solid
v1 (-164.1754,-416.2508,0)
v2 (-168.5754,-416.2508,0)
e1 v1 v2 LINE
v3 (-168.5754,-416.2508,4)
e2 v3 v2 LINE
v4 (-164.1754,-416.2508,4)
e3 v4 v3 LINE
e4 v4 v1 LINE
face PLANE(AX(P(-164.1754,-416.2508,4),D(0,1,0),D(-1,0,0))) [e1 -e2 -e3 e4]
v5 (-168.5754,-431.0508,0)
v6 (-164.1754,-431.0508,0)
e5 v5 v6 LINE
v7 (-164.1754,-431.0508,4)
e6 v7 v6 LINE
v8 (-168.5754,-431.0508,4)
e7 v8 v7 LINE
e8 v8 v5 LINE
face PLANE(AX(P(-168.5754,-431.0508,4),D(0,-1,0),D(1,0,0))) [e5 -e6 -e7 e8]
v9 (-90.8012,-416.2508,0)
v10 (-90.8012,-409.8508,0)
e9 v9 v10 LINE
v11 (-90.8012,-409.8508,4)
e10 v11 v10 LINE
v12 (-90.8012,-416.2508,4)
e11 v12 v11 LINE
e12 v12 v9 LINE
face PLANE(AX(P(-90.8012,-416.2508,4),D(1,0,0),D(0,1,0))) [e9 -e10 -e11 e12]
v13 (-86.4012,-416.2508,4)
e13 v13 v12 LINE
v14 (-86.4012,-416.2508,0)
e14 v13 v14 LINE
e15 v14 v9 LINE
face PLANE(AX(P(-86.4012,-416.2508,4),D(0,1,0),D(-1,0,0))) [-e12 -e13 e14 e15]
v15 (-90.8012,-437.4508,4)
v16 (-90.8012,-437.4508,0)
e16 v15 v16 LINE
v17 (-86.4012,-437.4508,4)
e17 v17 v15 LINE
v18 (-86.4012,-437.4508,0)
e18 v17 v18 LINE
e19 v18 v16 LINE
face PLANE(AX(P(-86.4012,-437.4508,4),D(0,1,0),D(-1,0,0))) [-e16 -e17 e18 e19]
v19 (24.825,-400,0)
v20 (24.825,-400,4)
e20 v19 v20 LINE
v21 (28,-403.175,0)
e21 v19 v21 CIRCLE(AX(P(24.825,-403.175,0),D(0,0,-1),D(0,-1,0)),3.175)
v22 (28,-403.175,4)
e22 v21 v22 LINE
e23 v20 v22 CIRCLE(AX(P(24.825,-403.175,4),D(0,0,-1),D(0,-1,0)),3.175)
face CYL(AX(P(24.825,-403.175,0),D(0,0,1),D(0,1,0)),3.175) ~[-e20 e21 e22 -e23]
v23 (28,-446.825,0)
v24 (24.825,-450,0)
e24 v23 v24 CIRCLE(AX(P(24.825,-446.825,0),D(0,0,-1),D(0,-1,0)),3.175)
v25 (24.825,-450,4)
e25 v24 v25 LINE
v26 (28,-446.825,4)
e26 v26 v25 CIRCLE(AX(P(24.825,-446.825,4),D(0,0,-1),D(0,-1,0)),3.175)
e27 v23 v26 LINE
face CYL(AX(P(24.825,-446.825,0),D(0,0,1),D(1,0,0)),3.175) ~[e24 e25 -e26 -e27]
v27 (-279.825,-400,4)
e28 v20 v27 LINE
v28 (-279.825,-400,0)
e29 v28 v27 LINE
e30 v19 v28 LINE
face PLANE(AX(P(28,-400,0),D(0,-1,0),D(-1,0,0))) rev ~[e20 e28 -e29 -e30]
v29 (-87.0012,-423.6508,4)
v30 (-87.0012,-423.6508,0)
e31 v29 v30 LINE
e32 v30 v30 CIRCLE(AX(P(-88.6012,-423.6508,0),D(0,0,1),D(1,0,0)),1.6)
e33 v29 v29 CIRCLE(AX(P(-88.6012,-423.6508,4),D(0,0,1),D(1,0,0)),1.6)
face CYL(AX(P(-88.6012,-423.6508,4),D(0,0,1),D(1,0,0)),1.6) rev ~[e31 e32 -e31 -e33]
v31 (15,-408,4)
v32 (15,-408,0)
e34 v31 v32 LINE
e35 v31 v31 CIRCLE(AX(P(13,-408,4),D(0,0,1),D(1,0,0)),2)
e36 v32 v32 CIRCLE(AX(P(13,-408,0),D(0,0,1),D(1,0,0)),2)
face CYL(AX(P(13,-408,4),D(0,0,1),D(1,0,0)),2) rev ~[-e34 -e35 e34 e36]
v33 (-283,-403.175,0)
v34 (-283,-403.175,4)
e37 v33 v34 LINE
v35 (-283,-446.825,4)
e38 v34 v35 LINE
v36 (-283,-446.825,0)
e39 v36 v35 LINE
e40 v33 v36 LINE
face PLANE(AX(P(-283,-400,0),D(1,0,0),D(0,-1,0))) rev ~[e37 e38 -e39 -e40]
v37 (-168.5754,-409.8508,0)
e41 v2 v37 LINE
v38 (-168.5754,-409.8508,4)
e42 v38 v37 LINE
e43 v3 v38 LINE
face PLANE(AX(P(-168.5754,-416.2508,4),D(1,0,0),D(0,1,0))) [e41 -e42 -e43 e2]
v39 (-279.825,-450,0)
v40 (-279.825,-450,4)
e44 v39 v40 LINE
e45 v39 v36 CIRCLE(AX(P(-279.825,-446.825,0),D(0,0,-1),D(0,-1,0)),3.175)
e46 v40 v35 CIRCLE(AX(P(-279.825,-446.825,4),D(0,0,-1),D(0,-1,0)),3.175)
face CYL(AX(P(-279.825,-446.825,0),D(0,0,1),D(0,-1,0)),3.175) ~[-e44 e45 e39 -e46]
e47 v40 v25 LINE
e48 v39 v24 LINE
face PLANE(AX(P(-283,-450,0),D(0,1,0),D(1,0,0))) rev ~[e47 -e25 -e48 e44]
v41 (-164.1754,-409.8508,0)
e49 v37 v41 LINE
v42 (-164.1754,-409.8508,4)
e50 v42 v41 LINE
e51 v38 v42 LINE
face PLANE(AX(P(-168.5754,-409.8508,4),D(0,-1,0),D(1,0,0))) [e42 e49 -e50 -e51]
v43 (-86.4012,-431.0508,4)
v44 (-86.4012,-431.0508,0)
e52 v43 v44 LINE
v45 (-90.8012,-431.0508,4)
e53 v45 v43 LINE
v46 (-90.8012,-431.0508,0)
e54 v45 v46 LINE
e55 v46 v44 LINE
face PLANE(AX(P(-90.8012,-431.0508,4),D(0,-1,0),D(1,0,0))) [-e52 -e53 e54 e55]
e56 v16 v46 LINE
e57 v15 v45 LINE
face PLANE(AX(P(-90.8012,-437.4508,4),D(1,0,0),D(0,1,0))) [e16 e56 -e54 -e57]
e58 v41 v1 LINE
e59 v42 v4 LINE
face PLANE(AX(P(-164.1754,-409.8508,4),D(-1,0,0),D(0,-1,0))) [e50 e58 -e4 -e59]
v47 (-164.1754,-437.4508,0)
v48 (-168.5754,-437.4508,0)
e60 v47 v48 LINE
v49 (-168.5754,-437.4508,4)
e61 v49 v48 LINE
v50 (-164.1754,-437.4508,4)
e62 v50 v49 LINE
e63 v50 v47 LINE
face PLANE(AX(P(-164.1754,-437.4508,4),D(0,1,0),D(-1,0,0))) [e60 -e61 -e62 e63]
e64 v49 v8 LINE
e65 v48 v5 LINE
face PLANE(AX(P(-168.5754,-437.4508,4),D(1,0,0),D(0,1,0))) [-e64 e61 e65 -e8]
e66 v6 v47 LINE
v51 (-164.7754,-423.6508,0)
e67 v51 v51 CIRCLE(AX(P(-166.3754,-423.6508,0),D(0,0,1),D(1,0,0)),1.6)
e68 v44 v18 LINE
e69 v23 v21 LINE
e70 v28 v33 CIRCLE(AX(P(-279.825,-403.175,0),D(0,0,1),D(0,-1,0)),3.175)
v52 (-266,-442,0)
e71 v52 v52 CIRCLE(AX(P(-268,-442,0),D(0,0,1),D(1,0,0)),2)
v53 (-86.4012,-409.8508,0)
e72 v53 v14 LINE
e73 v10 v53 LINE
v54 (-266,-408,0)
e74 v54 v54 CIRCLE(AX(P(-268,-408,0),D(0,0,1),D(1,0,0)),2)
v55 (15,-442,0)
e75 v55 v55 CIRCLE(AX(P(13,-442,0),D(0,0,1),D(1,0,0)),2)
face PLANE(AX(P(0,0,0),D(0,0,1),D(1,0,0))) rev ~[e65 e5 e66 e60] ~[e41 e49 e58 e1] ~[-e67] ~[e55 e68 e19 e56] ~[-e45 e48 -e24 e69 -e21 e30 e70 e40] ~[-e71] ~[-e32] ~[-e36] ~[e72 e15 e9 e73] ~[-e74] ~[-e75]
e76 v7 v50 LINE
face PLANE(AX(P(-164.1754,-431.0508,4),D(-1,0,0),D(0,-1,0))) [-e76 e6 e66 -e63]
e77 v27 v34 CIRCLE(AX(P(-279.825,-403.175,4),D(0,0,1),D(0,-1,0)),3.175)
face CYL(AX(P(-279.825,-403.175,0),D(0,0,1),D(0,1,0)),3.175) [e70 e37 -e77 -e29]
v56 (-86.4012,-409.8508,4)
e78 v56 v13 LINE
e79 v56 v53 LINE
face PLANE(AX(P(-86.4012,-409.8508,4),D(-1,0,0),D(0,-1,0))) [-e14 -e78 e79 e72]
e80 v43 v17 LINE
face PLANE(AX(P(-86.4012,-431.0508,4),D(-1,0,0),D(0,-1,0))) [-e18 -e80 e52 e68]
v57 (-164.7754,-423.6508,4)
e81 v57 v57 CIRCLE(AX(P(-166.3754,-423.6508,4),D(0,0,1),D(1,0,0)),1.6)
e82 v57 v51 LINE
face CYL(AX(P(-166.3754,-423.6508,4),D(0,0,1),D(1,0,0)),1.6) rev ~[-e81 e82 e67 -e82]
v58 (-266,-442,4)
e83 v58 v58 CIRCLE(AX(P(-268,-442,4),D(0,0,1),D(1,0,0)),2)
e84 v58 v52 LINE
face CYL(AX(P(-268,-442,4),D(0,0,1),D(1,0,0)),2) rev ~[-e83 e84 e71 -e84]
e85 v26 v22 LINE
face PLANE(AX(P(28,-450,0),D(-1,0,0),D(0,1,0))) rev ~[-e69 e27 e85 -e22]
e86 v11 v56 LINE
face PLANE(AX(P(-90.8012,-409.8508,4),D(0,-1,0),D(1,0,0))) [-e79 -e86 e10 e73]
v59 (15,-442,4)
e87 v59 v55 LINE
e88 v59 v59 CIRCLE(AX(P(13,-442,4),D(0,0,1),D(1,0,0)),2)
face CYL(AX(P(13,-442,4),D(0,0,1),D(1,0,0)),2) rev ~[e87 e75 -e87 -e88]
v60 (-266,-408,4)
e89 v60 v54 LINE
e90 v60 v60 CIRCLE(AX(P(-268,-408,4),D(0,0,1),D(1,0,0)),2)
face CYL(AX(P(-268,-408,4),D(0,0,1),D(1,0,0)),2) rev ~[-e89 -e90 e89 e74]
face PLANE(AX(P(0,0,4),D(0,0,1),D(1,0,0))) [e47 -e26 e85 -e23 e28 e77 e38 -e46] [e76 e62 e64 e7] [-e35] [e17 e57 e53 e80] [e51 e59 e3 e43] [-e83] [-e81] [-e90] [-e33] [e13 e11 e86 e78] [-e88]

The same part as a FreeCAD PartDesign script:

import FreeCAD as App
import Part
import Sketcher
Q = App.Units.Quantity


def edges_at(feature, points):
    """Names of the edges that pass closest to the given points."""
    edges = feature.Shape.Edges
    near = lambda p: min(range(len(edges)), key=lambda i: edges[i].distToShape(Part.Vertex(*p))[0])
    return sorted({f"Edge{near(p) + 1}" for p in points})


def add_polygon(sketch, points):
    """Adds a closed chain of lines whose ends are joined by coincident constraints."""
    first, n = sketch.GeometryCount, len(points)
    for a, b in zip(points, points[1:] + points[:1]):
        sketch.addGeometry(Part.LineSegment(App.Vector(*a, 0), App.Vector(*b, 0)), False)
    for i in range(n):
        sketch.addConstraint(Sketcher.Constraint("Coincident", first + i, 2, first + (i + 1) % n, 1))

doc = App.newDocument("Part")
params = doc.addObject("Spreadsheet::Sheet", "Params")
for row, (alias, value) in enumerate([
    ("sketch1_height", "50 mm"),
    ("sketch1_width", "311 mm"),
    ("pad1_length", "4 mm"),
    ("fillet_radius", "3.175 mm"),
    ("sketch2_diameter", "3.2 mm"),
    ("sketch2_width", "4.4 mm"),
    ("sketch2_height", "6.4 mm"),
    ("sketch3_diameter", "4 mm"),
    ("pocket2_length", "4 mm"),
], start=1):
    params.set(f"A{row}", alias)
    params.set(f"B{row}", "=" + value)
    params.setAlias(f"B{row}", alias)

body = doc.addObject("PartDesign::Body", "Body")

# Sketch on XY plane
sketch1 = body.newObject("Sketcher::SketchObject", "Sketch")
sketch1.AttachmentSupport = (doc.getObject("XY_Plane"), [""])
sketch1.MapMode = "FlatFace"
add_polygon(sketch1, [(28, -400), (-283, -400), (-283, -450), (28, -450)])  # lines 0-3
sketch1.addConstraint([
    Sketcher.Constraint("Horizontal", 0),
    Sketcher.Constraint("Vertical", 1),
    Sketcher.Constraint("Horizontal", 2),
    Sketcher.Constraint("Vertical", 3),
    Sketcher.Constraint("DistanceY", 1, 2, 1, 1, Q("50 mm")),
    Sketcher.Constraint("DistanceX", 0, 2, 0, 1, Q("311 mm")),
    Sketcher.Constraint("DistanceX", 0, 2, -1, 1, Q("283 mm")),
    Sketcher.Constraint("DistanceY", 0, 2, -1, 1, Q("400 mm")),
])
sketch1.setExpression("Constraints[8]", "Params.sketch1_height")
sketch1.setExpression("Constraints[9]", "Params.sketch1_width")
pad1 = body.newObject("PartDesign::Pad", "Pad")
pad1.Profile = sketch1
pad1.setExpression("Length", "Params.pad1_length")
doc.recompute()

fillet = body.newObject("PartDesign::Fillet", "Fillet")
fillet.Base = (pad1, edges_at(pad1, [
    (-283, -450, 2),
    (-283, -400, 2),
    (28, -450, 2),
    (28, -400, 2),
]))
fillet.setExpression("Radius", "Params.fillet_radius")

# Sketch on XY plane
sketch2 = body.newObject("Sketcher::SketchObject", "Sketch001")
sketch2.AttachmentSupport = (doc.getObject("XY_Plane"), [""])
sketch2.MapMode = "FlatFace"
sketch2.AttachmentOffset = App.Placement(App.Vector(0, 0, 4), App.Rotation())
add_polygon(sketch2, [(-86.4, -437.5), (-86.4, -431.1), (-90.8, -431.1), (-90.8, -437.5)])  # lines 0-3
add_polygon(sketch2, [(-90.8, -416.3), (-86.4, -416.3), (-86.4, -409.9), (-90.8, -409.9)])  # lines 4-7
add_polygon(sketch2, [(-168.6, -437.5), (-164.2, -437.5), (-164.2, -431.1), (-168.6, -431.1)])  # lines 8-11
add_polygon(sketch2, [(-168.6, -416.3), (-164.2, -416.3), (-164.2, -409.9), (-168.6, -409.9)])  # lines 12-15
sketch2.addGeometry(Part.Circle(App.Vector(-166.4, -423.7, 0), App.Vector(0, 0, 1), 1.6), False)  # 16
sketch2.addGeometry(Part.Circle(App.Vector(-88.6, -423.7, 0), App.Vector(0, 0, 1), 1.6), False)  # 17
sketch2.addConstraint([
    Sketcher.Constraint("Vertical", 0),
    Sketcher.Constraint("Horizontal", 1),
    Sketcher.Constraint("Vertical", 2),
    Sketcher.Constraint("Horizontal", 3),
    Sketcher.Constraint("Horizontal", 4),
    Sketcher.Constraint("Vertical", 5),
    Sketcher.Constraint("Horizontal", 6),
    Sketcher.Constraint("Vertical", 7),
    Sketcher.Constraint("Horizontal", 8),
    Sketcher.Constraint("Vertical", 9),
    Sketcher.Constraint("Horizontal", 10),
    Sketcher.Constraint("Vertical", 11),
    Sketcher.Constraint("Horizontal", 12),
    Sketcher.Constraint("Vertical", 13),
    Sketcher.Constraint("Horizontal", 14),
    Sketcher.Constraint("Vertical", 15),
    Sketcher.Constraint("Equal", 16, 17),
    Sketcher.Constraint("Horizontal", 16, 3, 17, 3),
    Sketcher.Constraint("Horizontal", 3, 2, 8, 2),
    Sketcher.Constraint("Horizontal", 1, 2, 9, 2),
    Sketcher.Constraint("Horizontal", 7, 2, 12, 2),
    Sketcher.Constraint("Horizontal", 6, 2, 13, 2),
    Sketcher.Constraint("Vertical", 3, 2, 4, 2),
    Sketcher.Constraint("Vertical", 2, 2, 6, 2),
    Sketcher.Constraint("Vertical", 9, 2, 12, 2),
    Sketcher.Constraint("Vertical", 11, 2, 14, 2),
    Sketcher.Constraint("Equal", 6, 8),
    Sketcher.Constraint("Equal", 2, 5),
    Sketcher.Constraint("Diameter", 16, Q("3.2 mm")),
    Sketcher.Constraint("DistanceX", 1, 2, 1, 1, Q("4.4 mm")),
    Sketcher.Constraint("DistanceY", 0, 1, 0, 2, Q("6.4 mm")),
    Sketcher.Constraint("DistanceX", 17, 3, 0, 2, Q("2.2 mm")),
    Sketcher.Constraint("DistanceY", 0, 2, 17, 3, Q("7.4 mm")),
    Sketcher.Constraint("DistanceY", 17, 3, 4, 2, Q("7.4 mm")),
    Sketcher.Constraint("DistanceX", 16, 3, 8, 2, Q("2.2 mm")),
    Sketcher.Constraint("DistanceX", 16, 3, -1, 1, Q("166.3754 mm")),
    Sketcher.Constraint("DistanceY", 16, 3, -1, 1, Q("423.6508 mm")),
    Sketcher.Constraint("DistanceX", 17, 3, -1, 1, Q("88.6012 mm")),
])
sketch2.setExpression("Constraints[44]", "Params.sketch2_diameter")
sketch2.setExpression("Constraints[45]", "Params.sketch2_width")
sketch2.setExpression("Constraints[46]", "Params.sketch2_height")
pocket1 = body.newObject("PartDesign::Pocket", "Pocket")
pocket1.Profile = sketch2
pocket1.Type = "ThroughAll"

# Sketch on XY plane
sketch3 = body.newObject("Sketcher::SketchObject", "Sketch002")
sketch3.AttachmentSupport = (doc.getObject("XY_Plane"), [""])
sketch3.MapMode = "FlatFace"
sketch3.AttachmentOffset = App.Placement(App.Vector(0, 0, 4), App.Rotation())
sketch3.addGeometry([
    Part.Circle(App.Vector(13, -442, 0), App.Vector(0, 0, 1), 2),
    Part.Circle(App.Vector(13, -408, 0), App.Vector(0, 0, 1), 2),
    Part.Circle(App.Vector(-268, -442, 0), App.Vector(0, 0, 1), 2),
    Part.Circle(App.Vector(-268, -408, 0), App.Vector(0, 0, 1), 2),
], False)
sketch3.addConstraint([
    Sketcher.Constraint("Equal", 0, 1),
    Sketcher.Constraint("Equal", 1, 2),
    Sketcher.Constraint("Equal", 2, 3),
    Sketcher.Constraint("Horizontal", 0, 3, 2, 3),
    Sketcher.Constraint("Horizontal", 1, 3, 3, 3),
    Sketcher.Constraint("Vertical", 0, 3, 1, 3),
    Sketcher.Constraint("Vertical", 2, 3, 3, 3),
    Sketcher.Constraint("Diameter", 0, Q("4 mm")),
    Sketcher.Constraint("DistanceX", -1, 1, 0, 3, Q("13 mm")),
    Sketcher.Constraint("DistanceY", 0, 3, -1, 1, Q("442 mm")),
    Sketcher.Constraint("DistanceY", 1, 3, -1, 1, Q("408 mm")),
    Sketcher.Constraint("DistanceX", 2, 3, -1, 1, Q("268 mm")),
])
sketch3.setExpression("Constraints[7]", "Params.sketch3_diameter")
pocket2 = body.newObject("PartDesign::Pocket", "Pocket001")
pocket2.Profile = sketch3
pocket2.setExpression("Length", "Params.pocket2_length")

doc.recompute()
